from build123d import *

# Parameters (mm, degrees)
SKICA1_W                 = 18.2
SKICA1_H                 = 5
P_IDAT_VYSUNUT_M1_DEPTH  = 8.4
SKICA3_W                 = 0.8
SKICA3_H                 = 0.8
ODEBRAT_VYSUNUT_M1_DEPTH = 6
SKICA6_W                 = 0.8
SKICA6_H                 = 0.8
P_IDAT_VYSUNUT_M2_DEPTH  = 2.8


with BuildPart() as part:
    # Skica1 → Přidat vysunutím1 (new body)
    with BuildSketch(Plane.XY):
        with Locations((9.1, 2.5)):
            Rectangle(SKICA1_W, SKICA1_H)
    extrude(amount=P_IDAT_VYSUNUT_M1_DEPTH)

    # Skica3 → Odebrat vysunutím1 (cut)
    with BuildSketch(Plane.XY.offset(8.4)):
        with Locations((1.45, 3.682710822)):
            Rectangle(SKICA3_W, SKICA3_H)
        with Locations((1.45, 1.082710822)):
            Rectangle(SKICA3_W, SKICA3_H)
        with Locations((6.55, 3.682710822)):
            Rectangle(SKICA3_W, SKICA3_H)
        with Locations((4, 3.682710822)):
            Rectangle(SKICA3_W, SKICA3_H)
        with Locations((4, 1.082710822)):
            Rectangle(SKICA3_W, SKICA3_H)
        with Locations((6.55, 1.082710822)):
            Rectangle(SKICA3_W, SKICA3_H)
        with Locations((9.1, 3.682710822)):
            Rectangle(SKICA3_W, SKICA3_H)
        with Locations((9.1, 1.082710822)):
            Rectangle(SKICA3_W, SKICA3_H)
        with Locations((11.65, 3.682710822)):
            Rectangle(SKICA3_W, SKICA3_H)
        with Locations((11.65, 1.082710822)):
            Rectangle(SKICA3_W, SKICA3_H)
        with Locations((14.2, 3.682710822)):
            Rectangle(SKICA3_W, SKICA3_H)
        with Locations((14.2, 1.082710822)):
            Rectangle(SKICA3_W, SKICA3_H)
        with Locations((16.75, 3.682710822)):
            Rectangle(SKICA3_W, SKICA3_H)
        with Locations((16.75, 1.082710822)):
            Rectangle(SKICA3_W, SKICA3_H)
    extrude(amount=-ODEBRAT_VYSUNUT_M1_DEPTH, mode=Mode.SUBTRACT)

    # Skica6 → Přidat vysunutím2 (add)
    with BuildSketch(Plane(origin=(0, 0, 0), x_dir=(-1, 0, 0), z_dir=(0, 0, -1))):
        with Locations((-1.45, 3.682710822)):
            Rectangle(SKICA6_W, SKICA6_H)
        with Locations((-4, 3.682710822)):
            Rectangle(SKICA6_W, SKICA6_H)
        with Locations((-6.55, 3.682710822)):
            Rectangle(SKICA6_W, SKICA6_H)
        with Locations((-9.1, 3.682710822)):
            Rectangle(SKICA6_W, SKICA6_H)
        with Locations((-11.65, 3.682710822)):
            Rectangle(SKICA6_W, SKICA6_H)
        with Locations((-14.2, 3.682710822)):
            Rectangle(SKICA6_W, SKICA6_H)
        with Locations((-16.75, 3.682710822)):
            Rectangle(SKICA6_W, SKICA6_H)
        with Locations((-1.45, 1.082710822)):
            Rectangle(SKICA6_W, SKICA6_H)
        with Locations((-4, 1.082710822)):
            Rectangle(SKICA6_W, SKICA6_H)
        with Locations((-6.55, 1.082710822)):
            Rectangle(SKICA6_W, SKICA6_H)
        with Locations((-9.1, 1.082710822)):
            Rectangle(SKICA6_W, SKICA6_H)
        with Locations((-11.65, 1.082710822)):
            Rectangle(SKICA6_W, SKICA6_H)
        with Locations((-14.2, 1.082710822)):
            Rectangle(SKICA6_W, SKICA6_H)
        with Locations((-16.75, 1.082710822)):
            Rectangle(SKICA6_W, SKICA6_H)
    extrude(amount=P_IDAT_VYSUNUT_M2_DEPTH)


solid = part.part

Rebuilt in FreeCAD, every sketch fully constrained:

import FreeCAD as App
import Part
import Sketcher

V = App.Vector
Q = App.Units.Quantity


def add_polygon(sketch, points):
    """Adds a closed chain of lines whose ends are joined by coincident constraints."""
    first, n = sketch.GeometryCount, len(points)
    for a, b in zip(points, points[1:] + points[:1]):
        sketch.addGeometry(Part.LineSegment(App.Vector(*a, 0), App.Vector(*b, 0)), False)
    for i in range(n):
        sketch.addConstraint(Sketcher.Constraint("Coincident", first + i, 2, first + (i + 1) % n, 1))

doc = App.newDocument("Part")
body = doc.addObject("PartDesign::Body", "Body")

sketch1 = body.newObject("Sketcher::SketchObject", "Sketch")
sketch1.AttachmentSupport = (doc.getObject("XY_Plane"), [""])
sketch1.MapMode = "FlatFace"
add_polygon(sketch1, [(0, 5), (0, 0), (18, 0), (18, 5)])
sketch1.addConstraint([
    Sketcher.Constraint("Vertical", 0),
    Sketcher.Constraint("Horizontal", 1),
    Sketcher.Constraint("Vertical", 2),
    Sketcher.Constraint("Horizontal", 3),
    Sketcher.Constraint("Coincident", 0, 2, -1, 1),
    Sketcher.Constraint("DistanceY", 0, 2, 0, 1, Q("5 mm")),
    Sketcher.Constraint("DistanceX", 1, 1, 1, 2, Q("18.2 mm")),
])
pad1 = body.newObject("PartDesign::Pad", "Pad")
pad1.Profile = sketch1
pad1.Length = 8.4

sketch2 = body.newObject("Sketcher::SketchObject", "Sketch001")
sketch2.AttachmentSupport = (doc.getObject("XY_Plane"), [""])
sketch2.MapMode = "FlatFace"
sketch2.AttachmentOffset = App.Placement(V(0, 0, 8.4), App.Rotation())
add_polygon(sketch2, [(1.1, 4.1), (1.1, 3.3), (1.9, 3.3), (1.9, 4.1)])
add_polygon(sketch2, [(1.1, 1.5), (1.1, 0.7), (1.9, 0.7), (1.9, 1.5)])
add_polygon(sketch2, [(6.2, 4.1), (6.2, 3.3), (7, 3.3), (7, 4.1)])
add_polygon(sketch2, [(3.6, 4.1), (3.6, 3.3), (4.4, 3.3), (4.4, 4.1)])
add_polygon(sketch2, [(3.6, 1.5), (3.6, 0.7), (4.4, 0.7), (4.4, 1.5)])
add_polygon(sketch2, [(6.2, 1.5), (6.2, 0.7), (7, 0.7), (7, 1.5)])
add_polygon(sketch2, [(8.7, 4.1), (8.7, 3.3), (9.5, 3.3), (9.5, 4.1)])
add_polygon(sketch2, [(8.7, 1.5), (8.7, 0.7), (9.5, 0.7), (9.5, 1.5)])
add_polygon(sketch2, [(11.2, 4.1), (11.2, 3.3), (12.1, 3.3), (12.1, 4.1)])
add_polygon(sketch2, [(11.2, 1.5), (11.2, 0.7), (12.1, 0.7), (12.1, 1.5)])
add_polygon(sketch2, [(13.8, 4.1), (13.8, 3.3), (14.6, 3.3), (14.6, 4.1)])
add_polygon(sketch2, [(13.8, 1.5), (13.8, 0.7), (14.6, 0.7), (14.6, 1.5)])
add_polygon(sketch2, [(16.4, 4.1), (16.4, 3.3), (17.1, 3.3), (17.1, 4.1)])
add_polygon(sketch2, [(16.4, 1.5), (16.4, 0.7), (17.1, 0.7), (17.1, 1.5)])
sketch2.addConstraint([
    Sketcher.Constraint("Vertical", 0),
    Sketcher.Constraint("Horizontal", 1),
    Sketcher.Constraint("Vertical", 2),
    Sketcher.Constraint("Horizontal", 3),
    Sketcher.Constraint("Vertical", 4),
    Sketcher.Constraint("Horizontal", 5),
    Sketcher.Constraint("Vertical", 6),
    Sketcher.Constraint("Horizontal", 7),
    Sketcher.Constraint("Vertical", 8),
    Sketcher.Constraint("Horizontal", 9),
    Sketcher.Constraint("Vertical", 10),
    Sketcher.Constraint("Horizontal", 11),
    Sketcher.Constraint("Vertical", 12),
    Sketcher.Constraint("Horizontal", 13),
    Sketcher.Constraint("Vertical", 14),
    Sketcher.Constraint("Horizontal", 15),
    Sketcher.Constraint("Vertical", 16),
    Sketcher.Constraint("Horizontal", 17),
    Sketcher.Constraint("Vertical", 18),
    Sketcher.Constraint("Horizontal", 19),
    Sketcher.Constraint("Vertical", 20),
    Sketcher.Constraint("Horizontal", 21),
    Sketcher.Constraint("Vertical", 22),
    Sketcher.Constraint("Horizontal", 23),
    Sketcher.Constraint("Vertical", 24),
    Sketcher.Constraint("Horizontal", 25),
    Sketcher.Constraint("Vertical", 26),
    Sketcher.Constraint("Horizontal", 27),
    Sketcher.Constraint("Vertical", 28),
    Sketcher.Constraint("Horizontal", 29),
    Sketcher.Constraint("Vertical", 30),
    Sketcher.Constraint("Horizontal", 31),
    Sketcher.Constraint("Vertical", 32),
    Sketcher.Constraint("Horizontal", 33),
    Sketcher.Constraint("Vertical", 34),
    Sketcher.Constraint("Horizontal", 35),
    Sketcher.Constraint("Vertical", 36),
    Sketcher.Constraint("Horizontal", 37),
    Sketcher.Constraint("Vertical", 38),
    Sketcher.Constraint("Horizontal", 39),
    Sketcher.Constraint("Vertical", 40),
    Sketcher.Constraint("Horizontal", 41),
    Sketcher.Constraint("Vertical", 42),
    Sketcher.Constraint("Horizontal", 43),
    Sketcher.Constraint("Vertical", 44),
    Sketcher.Constraint("Horizontal", 45),
    Sketcher.Constraint("Vertical", 46),
    Sketcher.Constraint("Horizontal", 47),
    Sketcher.Constraint("Vertical", 48),
    Sketcher.Constraint("Horizontal", 49),
    Sketcher.Constraint("Vertical", 50),
    Sketcher.Constraint("Horizontal", 51),
    Sketcher.Constraint("Vertical", 52),
    Sketcher.Constraint("Horizontal", 53),
    Sketcher.Constraint("Vertical", 54),
    Sketcher.Constraint("Horizontal", 55),
    Sketcher.Constraint("Horizontal", 1, 2, 8, 2),
    Sketcher.Constraint("Horizontal", 3, 2, 10, 2),
    Sketcher.Constraint("Horizontal", 9, 2, 12, 2),
    Sketcher.Constraint("Horizontal", 11, 2, 14, 2),
    Sketcher.Constraint("Horizontal", 5, 2, 16, 2),
    Sketcher.Constraint("Horizontal", 7, 2, 18, 2),
    Sketcher.Constraint("Horizontal", 17, 2, 20, 2),
    Sketcher.Constraint("Horizontal", 19, 2, 22, 2),
    Sketcher.Constraint("Horizontal", 13, 2, 24, 2),
    Sketcher.Constraint("Horizontal", 15, 2, 26, 2),
    Sketcher.Constraint("Horizontal", 21, 2, 28, 2),
    Sketcher.Constraint("Horizontal", 23, 2, 30, 2),
    Sketcher.Constraint("Horizontal", 25, 2, 32, 2),
    Sketcher.Constraint("Horizontal", 27, 2, 34, 2),
    Sketcher.Constraint("Horizontal", 29, 2, 36, 2),
    Sketcher.Constraint("Horizontal", 31, 2, 38, 2),
    Sketcher.Constraint("Horizontal", 33, 2, 40, 2),
    Sketcher.Constraint("Horizontal", 35, 2, 42, 2),
    Sketcher.Constraint("Horizontal", 37, 2, 44, 2),
    Sketcher.Constraint("Horizontal", 39, 2, 46, 2),
    Sketcher.Constraint("Horizontal", 41, 2, 48, 2),
    Sketcher.Constraint("Horizontal", 43, 2, 50, 2),
    Sketcher.Constraint("Horizontal", 45, 2, 52, 2),
    Sketcher.Constraint("Horizontal", 47, 2, 54, 2),
    Sketcher.Constraint("Vertical", 3, 2, 4, 2),
    Sketcher.Constraint("Vertical", 2, 2, 5, 2),
    Sketcher.Constraint("Vertical", 15, 2, 16, 2),
    Sketcher.Constraint("Vertical", 14, 2, 17, 2),
    Sketcher.Constraint("Vertical", 11, 2, 20, 2),
    Sketcher.Constraint("Vertical", 10, 2, 21, 2),
    Sketcher.Constraint("Vertical", 27, 2, 28, 2),
    Sketcher.Constraint("Vertical", 26, 2, 29, 2),
    Sketcher.Constraint("Vertical", 35, 2, 36, 2),
    Sketcher.Constraint("Vertical", 34, 2, 37, 2),
    Sketcher.Constraint("Vertical", 43, 2, 44, 2),
    Sketcher.Constraint("Vertical", 42, 2, 45, 2),
    Sketcher.Constraint("Vertical", 51, 2, 52, 2),
    Sketcher.Constraint("Vertical", 50, 2, 53, 2),
    Sketcher.Constraint("Equal", 7, 9),
    Sketcher.Constraint("Equal", 11, 13),
    Sketcher.Constraint("Equal", 23, 25),
    Sketcher.Constraint("Equal", 31, 33),
    Sketcher.Constraint("Equal", 39, 41),
    Sketcher.Constraint("Equal", 47, 49),
    Sketcher.Constraint("Equal", 55, 0),
    Sketcher.Constraint("Equal", 2, 4),
    Sketcher.Constraint("DistanceX", 1, 1, 1, 2, Q("0.8 mm")),
    Sketcher.Constraint("DistanceX", -1, 1, 12, 2, Q("3.6 mm")),
    Sketcher.Constraint("DistanceX", -1, 1, 24, 2, Q("8.7 mm")),
    Sketcher.Constraint("DistanceX", -1, 1, 40, 2, Q("13.8 mm")),
    Sketcher.Constraint("DistanceY", 4, 2, 0, 2, Q("2.6 mm")),
    Sketcher.Constraint("DistanceX", 1, 2, 8, 2, Q("4.3 mm")),
    Sketcher.Constraint("DistanceX", -1, 1, 0, 2, Q("1.05 mm")),
    Sketcher.Constraint("DistanceX", -1, 1, 32, 2, Q("11.25 mm")),
    Sketcher.Constraint("DistanceX", -1, 1, 48, 2, Q("16.35 mm")),
    Sketcher.Constraint("DistanceY", -1, 1, 0, 2, Q("3.282711 mm")),
])
pocket1 = body.newObject("PartDesign::Pocket", "Pocket")
pocket1.Profile = sketch2
pocket1.Length = 6

sketch3 = body.newObject("Sketcher::SketchObject", "Sketch002")
sketch3.AttachmentSupport = (doc.getObject("XY_Plane"), [""])
sketch3.MapMode = "FlatFace"
add_polygon(sketch3, [(1.9, 4.1), (1.9, 3.3), (1.1, 3.3), (1.1, 4.1)])
add_polygon(sketch3, [(4.4, 4.1), (4.4, 3.3), (3.6, 3.3), (3.6, 4.1)])
add_polygon(sketch3, [(7, 4.1), (7, 3.3), (6.2, 3.3), (6.2, 4.1)])
add_polygon(sketch3, [(9.5, 4.1), (9.5, 3.3), (8.7, 3.3), (8.7, 4.1)])
add_polygon(sketch3, [(12.1, 4.1), (12.1, 3.3), (11.2, 3.3), (11.2, 4.1)])
add_polygon(sketch3, [(14.6, 4.1), (14.6, 3.3), (13.8, 3.3), (13.8, 4.1)])
add_polygon(sketch3, [(17.1, 4.1), (17.1, 3.3), (16.4, 3.3), (16.4, 4.1)])
add_polygon(sketch3, [(1.9, 1.5), (1.9, 0.7), (1.1, 0.7), (1.1, 1.5)])
add_polygon(sketch3, [(4.4, 1.5), (4.4, 0.7), (3.6, 0.7), (3.6, 1.5)])
add_polygon(sketch3, [(7, 1.5), (7, 0.7), (6.2, 0.7), (6.2, 1.5)])
add_polygon(sketch3, [(9.5, 1.5), (9.5, 0.7), (8.7, 0.7), (8.7, 1.5)])
add_polygon(sketch3, [(12.1, 1.5), (12.1, 0.7), (11.2, 0.7), (11.2, 1.5)])
add_polygon(sketch3, [(14.6, 1.5), (14.6, 0.7), (13.8, 0.7), (13.8, 1.5)])
add_polygon(sketch3, [(17.1, 1.5), (17.1, 0.7), (16.4, 0.7), (16.4, 1.5)])
sketch3.addConstraint([
    Sketcher.Constraint("Vertical", 0),
    Sketcher.Constraint("Horizontal", 1),
    Sketcher.Constraint("Vertical", 2),
    Sketcher.Constraint("Horizontal", 3),
    Sketcher.Constraint("Vertical", 4),
    Sketcher.Constraint("Horizontal", 5),
    Sketcher.Constraint("Vertical", 6),
    Sketcher.Constraint("Horizontal", 7),
    Sketcher.Constraint("Vertical", 8),
    Sketcher.Constraint("Horizontal", 9),
    Sketcher.Constraint("Vertical", 10),
    Sketcher.Constraint("Horizontal", 11),
    Sketcher.Constraint("Vertical", 12),
    Sketcher.Constraint("Horizontal", 13),
    Sketcher.Constraint("Vertical", 14),
    Sketcher.Constraint("Horizontal", 15),
    Sketcher.Constraint("Vertical", 16),
    Sketcher.Constraint("Horizontal", 17),
    Sketcher.Constraint("Vertical", 18),
    Sketcher.Constraint("Horizontal", 19),
    Sketcher.Constraint("Vertical", 20),
    Sketcher.Constraint("Horizontal", 21),
    Sketcher.Constraint("Vertical", 22),
    Sketcher.Constraint("Horizontal", 23),
    Sketcher.Constraint("Vertical", 24),
    Sketcher.Constraint("Horizontal", 25),
    Sketcher.Constraint("Vertical", 26),
    Sketcher.Constraint("Horizontal", 27),
    Sketcher.Constraint("Vertical", 28),
    Sketcher.Constraint("Horizontal", 29),
    Sketcher.Constraint("Vertical", 30),
    Sketcher.Constraint("Horizontal", 31),
    Sketcher.Constraint("Vertical", 32),
    Sketcher.Constraint("Horizontal", 33),
    Sketcher.Constraint("Vertical", 34),
    Sketcher.Constraint("Horizontal", 35),
    Sketcher.Constraint("Vertical", 36),
    Sketcher.Constraint("Horizontal", 37),
    Sketcher.Constraint("Vertical", 38),
    Sketcher.Constraint("Horizontal", 39),
    Sketcher.Constraint("Vertical", 40),
    Sketcher.Constraint("Horizontal", 41),
    Sketcher.Constraint("Vertical", 42),
    Sketcher.Constraint("Horizontal", 43),
    Sketcher.Constraint("Vertical", 44),
    Sketcher.Constraint("Horizontal", 45),
    Sketcher.Constraint("Vertical", 46),
    Sketcher.Constraint("Horizontal", 47),
    Sketcher.Constraint("Vertical", 48),
    Sketcher.Constraint("Horizontal", 49),
    Sketcher.Constraint("Vertical", 50),
    Sketcher.Constraint("Horizontal", 51),
    Sketcher.Constraint("Vertical", 52),
    Sketcher.Constraint("Horizontal", 53),
    Sketcher.Constraint("Vertical", 54),
    Sketcher.Constraint("Horizontal", 55),
    Sketcher.Constraint("Horizontal", 1, 2, 4, 2),
    Sketcher.Constraint("Horizontal", 3, 2, 6, 2),
    Sketcher.Constraint("Horizontal", 5, 2, 8, 2),
    Sketcher.Constraint("Horizontal", 7, 2, 10, 2),
    Sketcher.Constraint("Horizontal", 9, 2, 12, 2),
    Sketcher.Constraint("Horizontal", 11, 2, 14, 2),
    Sketcher.Constraint("Horizontal", 13, 2, 16, 2),
    Sketcher.Constraint("Horizontal", 15, 2, 18, 2),
    Sketcher.Constraint("Horizontal", 17, 2, 20, 2),
    Sketcher.Constraint("Horizontal", 19, 2, 22, 2),
    Sketcher.Constraint("Horizontal", 21, 2, 24, 2),
    Sketcher.Constraint("Horizontal", 23, 2, 26, 2),
    Sketcher.Constraint("Horizontal", 29, 2, 32, 2),
    Sketcher.Constraint("Horizontal", 31, 2, 34, 2),
    Sketcher.Constraint("Horizontal", 33, 2, 36, 2),
    Sketcher.Constraint("Horizontal", 35, 2, 38, 2),
    Sketcher.Constraint("Horizontal", 37, 2, 40, 2),
    Sketcher.Constraint("Horizontal", 39, 2, 42, 2),
    Sketcher.Constraint("Horizontal", 41, 2, 44, 2),
    Sketcher.Constraint("Horizontal", 43, 2, 46, 2),
    Sketcher.Constraint("Horizontal", 45, 2, 48, 2),
    Sketcher.Constraint("Horizontal", 47, 2, 50, 2),
    Sketcher.Constraint("Horizontal", 49, 2, 52, 2),
    Sketcher.Constraint("Horizontal", 51, 2, 54, 2),
    Sketcher.Constraint("Vertical", 3, 2, 28, 2),
    Sketcher.Constraint("Vertical", 2, 2, 29, 2),
    Sketcher.Constraint("Vertical", 7, 2, 32, 2),
    Sketcher.Constraint("Vertical", 6, 2, 33, 2),
    Sketcher.Constraint("Vertical", 11, 2, 36, 2),
    Sketcher.Constraint("Vertical", 10, 2, 37, 2),
    Sketcher.Constraint("Vertical", 15, 2, 40, 2),
    Sketcher.Constraint("Vertical", 14, 2, 41, 2),
    Sketcher.Constraint("Vertical", 19, 2, 44, 2),
    Sketcher.Constraint("Vertical", 18, 2, 45, 2),
    Sketcher.Constraint("Vertical", 23, 2, 48, 2),
    Sketcher.Constraint("Vertical", 22, 2, 49, 2),
    Sketcher.Constraint("Vertical", 27, 2, 52, 2),
    Sketcher.Constraint("Vertical", 26, 2, 53, 2),
    Sketcher.Constraint("Equal", 3, 5),
    Sketcher.Constraint("Equal", 7, 9),
    Sketcher.Constraint("Equal", 11, 13),
    Sketcher.Constraint("Equal", 15, 17),
    Sketcher.Constraint("Equal", 19, 21),
    Sketcher.Constraint("Equal", 23, 25),
    Sketcher.Constraint("Equal", 55, 0),
    Sketcher.Constraint("Equal", 26, 28),
    Sketcher.Constraint("DistanceX", 1, 2, 1, 1, Q("0.8 mm")),
    Sketcher.Constraint("DistanceX", -1, 1, 4, 2, Q("4.4 mm")),
    Sketcher.Constraint("DistanceX", -1, 1, 12, 2, Q("9.5 mm")),
    Sketcher.Constraint("DistanceX", -1, 1, 20, 2, Q("14.6 mm")),
    Sketcher.Constraint("DistanceX", 0, 2, 8, 2, Q("5.1 mm")),
    Sketcher.Constraint("DistanceX", 8, 2, 16, 2, Q("5.1 mm")),
    Sketcher.Constraint("DistanceX", 16, 2, 24, 2, Q("5.1 mm")),
    Sketcher.Constraint("DistanceY", 28, 2, 0, 2, Q("2.6 mm")),
    Sketcher.Constraint("DistanceX", -1, 1, 0, 2, Q("1.85 mm")),
    Sketcher.Constraint("DistanceY", -1, 1, 0, 2, Q("3.282711 mm")),
])
pad2 = body.newObject("PartDesign::Pad", "Pad001")
pad2.Profile = sketch3
pad2.Length = 2.8
pad2.Reversed = True

doc.recompute()
